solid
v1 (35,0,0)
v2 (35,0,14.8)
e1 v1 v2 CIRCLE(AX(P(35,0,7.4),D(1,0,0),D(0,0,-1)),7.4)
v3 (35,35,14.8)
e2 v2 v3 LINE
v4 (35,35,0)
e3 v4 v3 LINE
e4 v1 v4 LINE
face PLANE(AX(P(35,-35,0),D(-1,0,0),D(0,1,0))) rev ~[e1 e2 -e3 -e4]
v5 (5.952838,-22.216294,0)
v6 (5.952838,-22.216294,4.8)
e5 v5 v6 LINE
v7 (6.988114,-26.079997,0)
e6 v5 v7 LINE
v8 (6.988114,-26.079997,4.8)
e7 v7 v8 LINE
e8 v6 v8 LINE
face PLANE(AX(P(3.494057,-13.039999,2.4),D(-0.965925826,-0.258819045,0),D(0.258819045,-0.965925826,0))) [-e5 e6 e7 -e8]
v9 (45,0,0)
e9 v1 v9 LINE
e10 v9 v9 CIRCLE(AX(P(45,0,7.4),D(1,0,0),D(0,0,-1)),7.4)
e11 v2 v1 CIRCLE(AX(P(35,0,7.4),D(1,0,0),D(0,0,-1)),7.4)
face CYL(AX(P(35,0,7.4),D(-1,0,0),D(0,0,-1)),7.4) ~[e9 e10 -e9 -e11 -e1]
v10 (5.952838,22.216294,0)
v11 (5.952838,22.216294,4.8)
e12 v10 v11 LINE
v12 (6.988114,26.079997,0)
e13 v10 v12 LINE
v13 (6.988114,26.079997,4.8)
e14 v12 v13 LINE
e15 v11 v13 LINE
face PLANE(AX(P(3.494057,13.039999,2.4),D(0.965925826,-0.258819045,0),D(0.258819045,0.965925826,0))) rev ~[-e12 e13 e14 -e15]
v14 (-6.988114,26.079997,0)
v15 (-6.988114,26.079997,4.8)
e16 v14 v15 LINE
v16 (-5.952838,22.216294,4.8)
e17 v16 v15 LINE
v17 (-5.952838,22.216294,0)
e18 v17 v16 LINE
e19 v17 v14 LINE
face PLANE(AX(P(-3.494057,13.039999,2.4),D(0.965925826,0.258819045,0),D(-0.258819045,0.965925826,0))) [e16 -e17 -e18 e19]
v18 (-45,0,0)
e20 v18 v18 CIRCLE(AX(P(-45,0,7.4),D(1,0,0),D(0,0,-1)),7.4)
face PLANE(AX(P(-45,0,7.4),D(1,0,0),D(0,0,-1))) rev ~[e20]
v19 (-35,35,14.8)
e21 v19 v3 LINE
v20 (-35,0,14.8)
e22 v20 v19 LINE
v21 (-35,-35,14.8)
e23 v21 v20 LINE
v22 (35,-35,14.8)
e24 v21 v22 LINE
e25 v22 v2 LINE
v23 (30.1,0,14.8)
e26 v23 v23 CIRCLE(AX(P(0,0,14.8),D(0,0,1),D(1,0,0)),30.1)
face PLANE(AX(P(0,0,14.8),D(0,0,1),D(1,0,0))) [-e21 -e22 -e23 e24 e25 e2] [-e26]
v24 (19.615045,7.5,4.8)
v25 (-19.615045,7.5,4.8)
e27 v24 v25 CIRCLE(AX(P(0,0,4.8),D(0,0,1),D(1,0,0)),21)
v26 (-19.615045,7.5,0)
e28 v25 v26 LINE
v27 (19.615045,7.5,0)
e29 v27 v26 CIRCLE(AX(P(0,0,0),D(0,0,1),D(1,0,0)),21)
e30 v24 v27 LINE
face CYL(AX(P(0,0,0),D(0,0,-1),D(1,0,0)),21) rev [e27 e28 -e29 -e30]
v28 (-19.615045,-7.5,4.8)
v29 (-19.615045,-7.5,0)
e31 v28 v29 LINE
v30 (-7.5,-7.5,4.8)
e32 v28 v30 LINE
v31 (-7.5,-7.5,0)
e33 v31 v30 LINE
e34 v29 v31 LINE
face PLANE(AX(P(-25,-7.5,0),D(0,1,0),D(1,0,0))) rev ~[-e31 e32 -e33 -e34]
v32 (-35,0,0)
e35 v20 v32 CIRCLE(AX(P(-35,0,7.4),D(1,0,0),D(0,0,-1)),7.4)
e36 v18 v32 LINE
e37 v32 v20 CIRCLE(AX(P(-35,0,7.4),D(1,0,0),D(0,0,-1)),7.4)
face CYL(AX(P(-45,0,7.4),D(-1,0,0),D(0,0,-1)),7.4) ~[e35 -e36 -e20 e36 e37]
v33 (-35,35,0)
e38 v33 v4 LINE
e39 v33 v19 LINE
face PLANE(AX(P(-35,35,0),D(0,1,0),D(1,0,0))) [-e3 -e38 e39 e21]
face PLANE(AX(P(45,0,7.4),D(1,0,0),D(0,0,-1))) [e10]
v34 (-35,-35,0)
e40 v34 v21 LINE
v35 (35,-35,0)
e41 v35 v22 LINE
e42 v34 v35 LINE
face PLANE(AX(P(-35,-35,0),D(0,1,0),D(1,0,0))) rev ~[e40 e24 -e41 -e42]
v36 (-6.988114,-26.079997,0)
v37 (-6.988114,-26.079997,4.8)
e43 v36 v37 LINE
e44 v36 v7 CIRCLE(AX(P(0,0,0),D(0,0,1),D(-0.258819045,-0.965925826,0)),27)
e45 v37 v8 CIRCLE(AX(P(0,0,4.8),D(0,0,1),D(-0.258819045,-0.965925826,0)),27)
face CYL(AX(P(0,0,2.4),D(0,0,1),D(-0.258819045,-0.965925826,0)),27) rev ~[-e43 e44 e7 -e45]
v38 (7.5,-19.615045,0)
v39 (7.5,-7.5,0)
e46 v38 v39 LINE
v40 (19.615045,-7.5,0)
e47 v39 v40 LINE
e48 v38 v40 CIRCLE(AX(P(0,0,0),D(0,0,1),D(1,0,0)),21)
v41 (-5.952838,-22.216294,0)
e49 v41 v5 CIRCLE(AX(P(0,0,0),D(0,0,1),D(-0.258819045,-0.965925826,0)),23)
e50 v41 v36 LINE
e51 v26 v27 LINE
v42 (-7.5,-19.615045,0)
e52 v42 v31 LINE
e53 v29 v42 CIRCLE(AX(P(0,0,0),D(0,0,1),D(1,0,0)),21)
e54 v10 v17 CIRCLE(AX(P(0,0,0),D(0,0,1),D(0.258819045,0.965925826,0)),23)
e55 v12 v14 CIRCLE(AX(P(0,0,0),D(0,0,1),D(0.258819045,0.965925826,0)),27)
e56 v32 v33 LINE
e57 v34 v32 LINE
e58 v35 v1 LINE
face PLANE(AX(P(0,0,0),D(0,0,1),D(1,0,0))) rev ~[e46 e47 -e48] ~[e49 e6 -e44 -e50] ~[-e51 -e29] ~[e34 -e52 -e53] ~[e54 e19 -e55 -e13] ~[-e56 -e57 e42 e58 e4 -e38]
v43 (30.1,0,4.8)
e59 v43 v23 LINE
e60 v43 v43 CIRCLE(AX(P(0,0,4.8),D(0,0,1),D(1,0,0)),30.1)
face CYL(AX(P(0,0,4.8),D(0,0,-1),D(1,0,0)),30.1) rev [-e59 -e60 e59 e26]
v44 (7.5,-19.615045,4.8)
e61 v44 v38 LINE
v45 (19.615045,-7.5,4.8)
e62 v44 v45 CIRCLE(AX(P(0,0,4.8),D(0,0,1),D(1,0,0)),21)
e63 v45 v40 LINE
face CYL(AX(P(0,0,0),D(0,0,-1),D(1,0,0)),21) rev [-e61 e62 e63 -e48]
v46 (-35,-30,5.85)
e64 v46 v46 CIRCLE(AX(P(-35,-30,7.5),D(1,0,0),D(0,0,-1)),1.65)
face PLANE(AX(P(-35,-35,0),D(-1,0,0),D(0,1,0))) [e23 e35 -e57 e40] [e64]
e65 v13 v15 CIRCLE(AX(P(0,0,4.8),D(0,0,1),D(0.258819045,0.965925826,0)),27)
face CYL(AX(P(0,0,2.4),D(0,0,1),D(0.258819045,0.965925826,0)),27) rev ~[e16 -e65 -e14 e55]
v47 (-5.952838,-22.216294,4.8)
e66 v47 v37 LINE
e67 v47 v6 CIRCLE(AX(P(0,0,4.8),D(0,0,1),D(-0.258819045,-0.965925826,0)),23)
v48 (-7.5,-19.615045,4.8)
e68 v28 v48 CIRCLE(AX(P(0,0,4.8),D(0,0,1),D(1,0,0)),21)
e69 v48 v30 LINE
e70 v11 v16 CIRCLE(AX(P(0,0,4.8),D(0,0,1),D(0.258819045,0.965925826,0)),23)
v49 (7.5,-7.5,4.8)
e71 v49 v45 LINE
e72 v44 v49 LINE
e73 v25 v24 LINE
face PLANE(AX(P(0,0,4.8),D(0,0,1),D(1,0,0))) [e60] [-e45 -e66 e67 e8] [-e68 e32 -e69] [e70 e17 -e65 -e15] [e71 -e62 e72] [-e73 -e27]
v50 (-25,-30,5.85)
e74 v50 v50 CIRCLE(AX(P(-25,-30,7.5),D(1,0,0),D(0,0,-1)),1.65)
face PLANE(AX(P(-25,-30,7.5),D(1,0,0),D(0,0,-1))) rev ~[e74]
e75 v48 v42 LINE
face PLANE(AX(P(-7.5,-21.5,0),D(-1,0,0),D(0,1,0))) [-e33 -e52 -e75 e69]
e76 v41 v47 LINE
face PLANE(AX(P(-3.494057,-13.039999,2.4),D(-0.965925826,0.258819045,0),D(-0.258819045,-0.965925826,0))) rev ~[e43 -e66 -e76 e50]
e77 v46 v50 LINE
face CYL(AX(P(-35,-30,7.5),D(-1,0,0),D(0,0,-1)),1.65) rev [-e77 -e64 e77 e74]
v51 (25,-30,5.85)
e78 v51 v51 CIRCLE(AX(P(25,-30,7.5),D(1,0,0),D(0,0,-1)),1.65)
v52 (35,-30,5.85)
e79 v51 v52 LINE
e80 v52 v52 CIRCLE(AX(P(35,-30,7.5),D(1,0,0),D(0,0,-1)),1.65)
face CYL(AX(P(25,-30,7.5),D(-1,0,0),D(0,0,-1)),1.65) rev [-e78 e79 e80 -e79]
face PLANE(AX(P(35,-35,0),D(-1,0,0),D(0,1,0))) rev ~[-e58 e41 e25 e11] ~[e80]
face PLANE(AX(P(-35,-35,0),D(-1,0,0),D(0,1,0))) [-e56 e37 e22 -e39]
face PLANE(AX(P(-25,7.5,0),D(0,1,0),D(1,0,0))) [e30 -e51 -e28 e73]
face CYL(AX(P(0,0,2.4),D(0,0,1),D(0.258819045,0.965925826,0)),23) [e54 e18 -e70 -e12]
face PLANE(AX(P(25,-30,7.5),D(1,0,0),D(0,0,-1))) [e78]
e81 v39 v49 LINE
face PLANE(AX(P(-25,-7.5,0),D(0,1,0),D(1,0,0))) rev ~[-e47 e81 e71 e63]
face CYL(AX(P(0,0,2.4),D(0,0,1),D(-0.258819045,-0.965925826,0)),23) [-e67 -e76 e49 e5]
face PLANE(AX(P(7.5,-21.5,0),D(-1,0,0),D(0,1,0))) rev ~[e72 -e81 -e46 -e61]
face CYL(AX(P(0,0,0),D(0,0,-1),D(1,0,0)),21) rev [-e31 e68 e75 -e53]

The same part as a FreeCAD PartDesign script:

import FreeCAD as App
import Part
import Sketcher

V = App.Vector

doc = App.newDocument("Part")
body = doc.addObject("PartDesign::Body", "Body")

sketch1 = doc.addObject("Sketcher::SketchObject", "Sketch")
body.addObject(sketch1)
sketch1.AttachmentSupport = (doc.XY_Plane, [""])
sketch1.MapMode = "FlatFace"
sketch1.addGeometry(Part.LineSegment(V(-25, 7.5, 0), V(-25, -7.5, 0)), False)
sketch1.addGeometry(Part.LineSegment(V(-25, -7.5, 0), V(25, -7.5, 0)), False)
sketch1.addGeometry(Part.LineSegment(V(25, -7.5, 0), V(25, 7.5, 0)), False)
sketch1.addGeometry(Part.LineSegment(V(25, 7.5, 0), V(-25, 7.5, 0)), False)
sketch1.addConstraint(Sketcher.Constraint("Coincident", 0, 2, 1, 1))
sketch1.addConstraint(Sketcher.Constraint("Coincident", 1, 2, 2, 1))
sketch1.addConstraint(Sketcher.Constraint("Coincident", 2, 2, 3, 1))
sketch1.addConstraint(Sketcher.Constraint("Coincident", 3, 2, 0, 1))
sketch1.addConstraint(Sketcher.Constraint("Vertical", 0))
sketch1.addConstraint(Sketcher.Constraint("Horizontal", 1))
sketch1.addConstraint(Sketcher.Constraint("Vertical", 2))
sketch1.addConstraint(Sketcher.Constraint("Horizontal", 3))
sketch1.addConstraint(Sketcher.Constraint("Symmetric", 0, 2, 2, 2, -1, 1))
sketch1.addConstraint(Sketcher.Constraint("DistanceX", 1, 1, 1, 2, 50.0))
sketch1.addConstraint(Sketcher.Constraint("DistanceY", 0, 2, 0, 1, 15.0))
pad1 = doc.addObject("PartDesign::Pad", "Pad")
body.addObject(pad1)
pad1.Profile = sketch1
pad1.Length = 4.8
body2 = doc.addObject("PartDesign::Body", "Body001")

sketch2 = doc.addObject("Sketcher::SketchObject", "Sketch001")
body2.addObject(sketch2)
sketch2.AttachmentSupport = (doc.getObject("YZ_Plane001"), [""])
sketch2.MapMode = "FlatFace"
sketch2.AttachmentOffset = App.Placement(V(0, 0, 35), App.Rotation())
sketch2.addGeometry(Part.Circle(V(0, 7.4, 0), V(0, 0, 1), 7.4), False)
sketch2.addConstraint(Sketcher.Constraint("PointOnObject", 0, 3, -2))
sketch2.addConstraint(Sketcher.Constraint("Diameter", 0, 14.8))
sketch2.addConstraint(Sketcher.Constraint("DistanceY", -1, 1, 0, 3, 7.4))
pad2 = doc.addObject("PartDesign::Pad", "Pad001")
body2.addObject(pad2)
pad2.Profile = sketch2
pad2.Length = 10
body3 = doc.addObject("PartDesign::Body", "Body002")

sketch3 = doc.addObject("Sketcher::SketchObject", "Sketch002")
body3.addObject(sketch3)
sketch3.AttachmentSupport = (doc.getObject("XY_Plane002"), [""])
sketch3.MapMode = "FlatFace"
sketch3.addGeometry(Part.LineSegment(V(-7.5, 0, 0), V(-7.5, -21.5, 0)), False)
sketch3.addGeometry(Part.LineSegment(V(-7.5, -21.5, 0), V(7.5, -21.5, 0)), False)
sketch3.addGeometry(Part.LineSegment(V(7.5, -21.5, 0), V(7.5, 0, 0)), False)
sketch3.addGeometry(Part.LineSegment(V(7.5, 0, 0), V(-7.5, 0, 0)), False)
sketch3.addConstraint(Sketcher.Constraint("Coincident", 0, 2, 1, 1))
sketch3.addConstraint(Sketcher.Constraint("Coincident", 1, 2, 2, 1))
sketch3.addConstraint(Sketcher.Constraint("Coincident", 2, 2, 3, 1))
sketch3.addConstraint(Sketcher.Constraint("Coincident", 3, 2, 0, 1))
sketch3.addConstraint(Sketcher.Constraint("Vertical", 0))
sketch3.addConstraint(Sketcher.Constraint("Horizontal", 1))
sketch3.addConstraint(Sketcher.Constraint("Vertical", 2))
sketch3.addConstraint(Sketcher.Constraint("Horizontal", 3))
sketch3.addConstraint(Sketcher.Constraint("Symmetric", 2, 2, 3, 2, -1, 1))
sketch3.addConstraint(Sketcher.Constraint("DistanceX", 1, 1, 1, 2, 15.0))
sketch3.addConstraint(Sketcher.Constraint("DistanceY", 0, 2, 0, 1, 21.5))
pad3 = doc.addObject("PartDesign::Pad", "Pad002")
body3.addObject(pad3)
pad3.Profile = sketch3
pad3.Length = 4.8
body4 = doc.addObject("PartDesign::Body", "Body003")
body4.AllowCompound = True

sketch4 = doc.addObject("Sketcher::SketchObject", "Sketch003")
body4.addObject(sketch4)
sketch4.AttachmentSupport = (doc.getObject("YZ_Plane003"), [""])
sketch4.MapMode = "FlatFace"
sketch4.AttachmentOffset = App.Placement(V(0, 0, -45), App.Rotation())
sketch4.addGeometry(Part.Circle(V(0, 7.4, 0), V(0, 0, 1), 7.4), False)
sketch4.addConstraint(Sketcher.Constraint("PointOnObject", 0, 3, -2))
sketch4.addConstraint(Sketcher.Constraint("Diameter", 0, 14.8))
sketch4.addConstraint(Sketcher.Constraint("DistanceY", -1, 1, 0, 3, 7.4))
pad4 = doc.addObject("PartDesign::Pad", "Pad003")
body4.addObject(pad4)
pad4.Profile = sketch4
pad4.Length = 10
doc.recompute()

boolean = doc.addObject("PartDesign::Boolean", "Boolean")
body4.addObject(boolean)
boolean.Type = "Fuse"
boolean.addObjects([body])
doc.recompute()

boolean2 = doc.addObject("PartDesign::Boolean", "Boolean001")
body4.addObject(boolean2)
boolean2.Type = "Fuse"
boolean2.addObjects([body2])
doc.recompute()

boolean3 = doc.addObject("PartDesign::Boolean", "Boolean002")
body4.addObject(boolean3)
boolean3.Type = "Fuse"
boolean3.addObjects([body3])
body5 = doc.addObject("PartDesign::Body", "Body004")

sketch5 = doc.addObject("Sketcher::SketchObject", "Sketch004")
body5.addObject(sketch5)
sketch5.AttachmentSupport = (doc.getObject("XZ_Plane004"), [""])
sketch5.MapMode = "FlatFace"
sketch5.addGeometry(Part.LineSegment(V(0, 4.8, 0), V(0, 0, 0)), False)
sketch5.addGeometry(Part.LineSegment(V(0, 0, 0), V(23, 0, 0)), False)
sketch5.addGeometry(Part.LineSegment(V(23, 0, 0), V(23, 4.8, 0)), False)
sketch5.addGeometry(Part.LineSegment(V(23, 4.8, 0), V(0, 4.8, 0)), False)
sketch5.addConstraint(Sketcher.Constraint("Coincident", 0, 2, 1, 1))
sketch5.addConstraint(Sketcher.Constraint("Coincident", 1, 2, 2, 1))
sketch5.addConstraint(Sketcher.Constraint("Coincident", 2, 2, 3, 1))
sketch5.addConstraint(Sketcher.Constraint("Coincident", 3, 2, 0, 1))
sketch5.addConstraint(Sketcher.Constraint("Vertical", 0))
sketch5.addConstraint(Sketcher.Constraint("Horizontal", 1))
sketch5.addConstraint(Sketcher.Constraint("Vertical", 2))
sketch5.addConstraint(Sketcher.Constraint("Horizontal", 3))
sketch5.addConstraint(Sketcher.Constraint("Coincident", 0, 2, -1, 1))
sketch5.addConstraint(Sketcher.Constraint("DistanceX", 1, 1, 1, 2, 23.0))
sketch5.addConstraint(Sketcher.Constraint("DistanceY", 0, 2, 0, 1, 4.8))
revolution = doc.addObject("PartDesign::Revolution", "Revolution")
body5.addObject(revolution)
revolution.Profile = sketch5
revolution.ReferenceAxis = (sketch5, ["V_Axis"])
revolution.Angle = 30
body6 = doc.addObject("PartDesign::Body", "Body005")

sketch6 = doc.addObject("Sketcher::SketchObject", "Sketch005")
body6.addObject(sketch6)
sketch6.AttachmentSupport = (doc.getObject("XZ_Plane005"), [""])
sketch6.MapMode = "FlatFace"
sketch6.addGeometry(Part.LineSegment(V(0, 4.8, 0), V(0, 0, 0)), False)
sketch6.addGeometry(Part.LineSegment(V(0, 0, 0), V(27, 0, 0)), False)
sketch6.addGeometry(Part.LineSegment(V(27, 0, 0), V(27, 4.8, 0)), False)
sketch6.addGeometry(Part.LineSegment(V(27, 4.8, 0), V(0, 4.8, 0)), False)
sketch6.addConstraint(Sketcher.Constraint("Coincident", 0, 2, 1, 1))
sketch6.addConstraint(Sketcher.Constraint("Coincident", 1, 2, 2, 1))
sketch6.addConstraint(Sketcher.Constraint("Coincident", 2, 2, 3, 1))
sketch6.addConstraint(Sketcher.Constraint("Coincident", 3, 2, 0, 1))
sketch6.addConstraint(Sketcher.Constraint("Vertical", 0))
sketch6.addConstraint(Sketcher.Constraint("Horizontal", 1))
sketch6.addConstraint(Sketcher.Constraint("Vertical", 2))
sketch6.addConstraint(Sketcher.Constraint("Horizontal", 3))
sketch6.addConstraint(Sketcher.Constraint("Coincident", 0, 2, -1, 1))
sketch6.addConstraint(Sketcher.Constraint("DistanceX", 1, 1, 1, 2, 27.0))
sketch6.addConstraint(Sketcher.Constraint("DistanceY", 0, 2, 0, 1, 4.8))
revolution2 = doc.addObject("PartDesign::Revolution", "Revolution001")
body6.addObject(revolution2)
revolution2.Profile = sketch6
revolution2.ReferenceAxis = (sketch6, ["V_Axis"])
revolution2.Angle = 30
doc.recompute()

boolean4 = doc.addObject("PartDesign::Boolean", "Boolean003")
body6.addObject(boolean4)
boolean4.Type = "Cut"
boolean4.addObjects([body5])
body7 = doc.addObject("PartDesign::Body", "Body006")
doc.recompute()

body6.Placement = App.Placement(V(0, 0, 0), App.Rotation(V(0, 0, -1), 105))
boolean5 = doc.addObject("PartDesign::Boolean", "Boolean004")
body7.addObject(boolean5)
boolean5.Type = "Fuse"
boolean5.addObjects([body6])
body8 = doc.addObject("PartDesign::Body", "Body007")

sketch7 = doc.addObject("Sketcher::SketchObject", "Sketch006")
body8.addObject(sketch7)
sketch7.AttachmentSupport = (doc.getObject("YZ_Plane007"), [""])
sketch7.MapMode = "FlatFace"
sketch7.AttachmentOffset = App.Placement(V(0, 0, -35), App.Rotation())
sketch7.addGeometry(Part.Circle(V(-30, 7.5, 0), V(0, 0, 1), 1.65), False)
sketch7.addConstraint(Sketcher.Constraint("Diameter", 0, 3.3))
sketch7.addConstraint(Sketcher.Constraint("DistanceX", 0, 3, -1, 1, 30.0))
sketch7.addConstraint(Sketcher.Constraint("DistanceY", -1, 1, 0, 3, 7.5))
pad5 = doc.addObject("PartDesign::Pad", "Pad004")
body8.addObject(pad5)
pad5.Profile = sketch7
pad5.Length = 10
body9 = doc.addObject("PartDesign::Body", "Body008")

sketch8 = doc.addObject("Sketcher::SketchObject", "Sketch007")
body9.addObject(sketch8)
sketch8.AttachmentSupport = (doc.getObject("YZ_Plane008"), [""])
sketch8.MapMode = "FlatFace"
sketch8.AttachmentOffset = App.Placement(V(0, 0, 25), App.Rotation())
sketch8.addGeometry(Part.Circle(V(-30, 7.5, 0), V(0, 0, 1), 1.65), False)
sketch8.addConstraint(Sketcher.Constraint("Diameter", 0, 3.3))
sketch8.addConstraint(Sketcher.Constraint("DistanceX", 0, 3, -1, 1, 30.0))
sketch8.addConstraint(Sketcher.Constraint("DistanceY", -1, 1, 0, 3, 7.5))
pad6 = doc.addObject("PartDesign::Pad", "Pad005")
body9.addObject(pad6)
pad6.Profile = sketch8
pad6.Length = 10
body10 = doc.addObject("PartDesign::Body", "Body009")

sketch9 = doc.addObject("Sketcher::SketchObject", "Sketch008")
body10.addObject(sketch9)
sketch9.AttachmentSupport = (doc.getObject("XY_Plane009"), [""])
sketch9.MapMode = "FlatFace"
sketch9.addGeometry(Part.Circle(V(0, 0, 0), V(0, 0, 1), 21), False)
sketch9.addConstraint(Sketcher.Constraint("Coincident", 0, 3, -1, 1))
sketch9.addConstraint(Sketcher.Constraint("Diameter", 0, 42.0))
pad7 = doc.addObject("PartDesign::Pad", "Pad006")
body10.addObject(pad7)
pad7.Profile = sketch9
pad7.Length = 4.8
body11 = doc.addObject("PartDesign::Body", "Body010")

sketch10 = doc.addObject("Sketcher::SketchObject", "Sketch009")
body11.addObject(sketch10)
sketch10.AttachmentSupport = (doc.getObject("XZ_Plane010"), [""])
sketch10.MapMode = "FlatFace"
sketch10.addGeometry(Part.LineSegment(V(0, 4.8, 0), V(0, 0, 0)), False)
sketch10.addGeometry(Part.LineSegment(V(0, 0, 0), V(23, 0, 0)), False)
sketch10.addGeometry(Part.LineSegment(V(23, 0, 0), V(23, 4.8, 0)), False)
sketch10.addGeometry(Part.LineSegment(V(23, 4.8, 0), V(0, 4.8, 0)), False)
sketch10.addConstraint(Sketcher.Constraint("Coincident", 0, 2, 1, 1))
sketch10.addConstraint(Sketcher.Constraint("Coincident", 1, 2, 2, 1))
sketch10.addConstraint(Sketcher.Constraint("Coincident", 2, 2, 3, 1))
sketch10.addConstraint(Sketcher.Constraint("Coincident", 3, 2, 0, 1))
sketch10.addConstraint(Sketcher.Constraint("Vertical", 0))
sketch10.addConstraint(Sketcher.Constraint("Horizontal", 1))
sketch10.addConstraint(Sketcher.Constraint("Vertical", 2))
sketch10.addConstraint(Sketcher.Constraint("Horizontal", 3))
sketch10.addConstraint(Sketcher.Constraint("Coincident", 0, 2, -1, 1))
sketch10.addConstraint(Sketcher.Constraint("DistanceX", 1, 1, 1, 2, 23.0))
sketch10.addConstraint(Sketcher.Constraint("DistanceY", 0, 2, 0, 1, 4.8))
revolution3 = doc.addObject("PartDesign::Revolution", "Revolution002")
body11.addObject(revolution3)
revolution3.Profile = sketch10
revolution3.ReferenceAxis = (sketch10, ["V_Axis"])
revolution3.Angle = 30
body12 = doc.addObject("PartDesign::Body", "Body011")

sketch11 = doc.addObject("Sketcher::SketchObject", "Sketch010")
body12.addObject(sketch11)
sketch11.AttachmentSupport = (doc.getObject("XZ_Plane011"), [""])
sketch11.MapMode = "FlatFace"
sketch11.addGeometry(Part.LineSegment(V(0, 4.8, 0), V(0, 0, 0)), False)
sketch11.addGeometry(Part.LineSegment(V(0, 0, 0), V(27, 0, 0)), False)
sketch11.addGeometry(Part.LineSegment(V(27, 0, 0), V(27, 4.8, 0)), False)
sketch11.addGeometry(Part.LineSegment(V(27, 4.8, 0), V(0, 4.8, 0)), False)
sketch11.addConstraint(Sketcher.Constraint("Coincident", 0, 2, 1, 1))
sketch11.addConstraint(Sketcher.Constraint("Coincident", 1, 2, 2, 1))
sketch11.addConstraint(Sketcher.Constraint("Coincident", 2, 2, 3, 1))
sketch11.addConstraint(Sketcher.Constraint("Coincident", 3, 2, 0, 1))
sketch11.addConstraint(Sketcher.Constraint("Vertical", 0))
sketch11.addConstraint(Sketcher.Constraint("Horizontal", 1))
sketch11.addConstraint(Sketcher.Constraint("Vertical", 2))
sketch11.addConstraint(Sketcher.Constraint("Horizontal", 3))
sketch11.addConstraint(Sketcher.Constraint("Coincident", 0, 2, -1, 1))
sketch11.addConstraint(Sketcher.Constraint("DistanceX", 1, 1, 1, 2, 27.0))
sketch11.addConstraint(Sketcher.Constraint("DistanceY", 0, 2, 0, 1, 4.8))
revolution4 = doc.addObject("PartDesign::Revolution", "Revolution003")
body12.addObject(revolution4)
revolution4.Profile = sketch11
revolution4.ReferenceAxis = (sketch11, ["V_Axis"])
revolution4.Angle = 30
doc.recompute()

boolean6 = doc.addObject("PartDesign::Boolean", "Boolean005")
body12.addObject(boolean6)
boolean6.Type = "Cut"
boolean6.addObjects([body11])
body13 = doc.addObject("PartDesign::Body", "Body012")
body13.AllowCompound = True
doc.recompute()

body12.Placement = App.Placement(V(0, 0, 0), App.Rotation(V(0, 0, 1), 75))
boolean7 = doc.addObject("PartDesign::Boolean", "Boolean006")
body13.addObject(boolean7)
boolean7.Type = "Fuse"
boolean7.addObjects([body12])
doc.recompute()

boolean8 = doc.addObject("PartDesign::Boolean", "Boolean007")
body13.addObject(boolean8)
boolean8.Type = "Fuse"
boolean8.addObjects([body7])
doc.recompute()

boolean9 = doc.addObject("PartDesign::Boolean", "Boolean008")
body13.addObject(boolean9)
boolean9.Type = "Fuse"
boolean9.addObjects([body8])
doc.recompute()

boolean10 = doc.addObject("PartDesign::Boolean", "Boolean009")
body13.addObject(boolean10)
boolean10.Type = "Fuse"
boolean10.addObjects([body9])
doc.recompute()

boolean11 = doc.addObject("PartDesign::Boolean", "Boolean010")
body13.addObject(boolean11)
boolean11.Type = "Fuse"
boolean11.addObjects([body10])
body14 = doc.addObject("PartDesign::Body", "Body013")

sketch12 = doc.addObject("Sketcher::SketchObject", "Sketch011")
body14.addObject(sketch12)
sketch12.AttachmentSupport = (doc.getObject("XY_Plane013"), [""])
sketch12.MapMode = "FlatFace"
sketch12.AttachmentOffset = App.Placement(V(0, 0, 4.8), App.Rotation())
sketch12.addGeometry(Part.Circle(V(0, 0, 0), V(0, 0, 1), 30.1), False)
sketch12.addConstraint(Sketcher.Constraint("Coincident", 0, 3, -1, 1))
sketch12.addConstraint(Sketcher.Constraint("Diameter", 0, 60.2))
pad8 = doc.addObject("PartDesign::Pad", "Pad007")
body14.addObject(pad8)
pad8.Profile = sketch12
pad8.Length = 10
body15 = doc.addObject("PartDesign::Body", "Body014")

sketch13 = doc.addObject("Sketcher::SketchObject", "Sketch012")
body15.addObject(sketch13)
sketch13.AttachmentSupport = (doc.getObject("XY_Plane014"), [""])
sketch13.MapMode = "FlatFace"
sketch13.addGeometry(Part.LineSegment(V(-35, 35, 0), V(-35, -35, 0)), False)
sketch13.addGeometry(Part.LineSegment(V(-35, -35, 0), V(35, -35, 0)), False)
sketch13.addGeometry(Part.LineSegment(V(35, -35, 0), V(35, 35, 0)), False)
sketch13.addGeometry(Part.LineSegment(V(35, 35, 0), V(-35, 35, 0)), False)
sketch13.addConstraint(Sketcher.Constraint("Coincident", 0, 2, 1, 1))
sketch13.addConstraint(Sketcher.Constraint("Coincident", 1, 2, 2, 1))
sketch13.addConstraint(Sketcher.Constraint("Coincident", 2, 2, 3, 1))
sketch13.addConstraint(Sketcher.Constraint("Coincident", 3, 2, 0, 1))
sketch13.addConstraint(Sketcher.Constraint("Vertical", 0))
sketch13.addConstraint(Sketcher.Constraint("Horizontal", 1))
sketch13.addConstraint(Sketcher.Constraint("Vertical", 2))
sketch13.addConstraint(Sketcher.Constraint("Horizontal", 3))
sketch13.addConstraint(Sketcher.Constraint("Symmetric", 0, 2, 2, 2, -1, 1))
sketch13.addConstraint(Sketcher.Constraint("Equal", 3, 0))
sketch13.addConstraint(Sketcher.Constraint("DistanceX", 1, 1, 1, 2, 70.0))
pad9 = doc.addObject("PartDesign::Pad", "Pad008")
body15.addObject(pad9)
pad9.Profile = sketch13
pad9.Length = 14.8
doc.recompute()

boolean12 = doc.addObject("PartDesign::Boolean", "Boolean011")
body15.addObject(boolean12)
boolean12.Type = "Cut"
boolean12.addObjects([body14])
doc.recompute()

boolean13 = doc.addObject("PartDesign::Boolean", "Boolean012")
body15.addObject(boolean13)
boolean13.Type = "Cut"
boolean13.addObjects([body13])
doc.recompute()

boolean14 = doc.addObject("PartDesign::Boolean", "Boolean013")
body15.addObject(boolean14)
boolean14.Type = "Fuse"
boolean14.addObjects([body4])

doc.recompute()
